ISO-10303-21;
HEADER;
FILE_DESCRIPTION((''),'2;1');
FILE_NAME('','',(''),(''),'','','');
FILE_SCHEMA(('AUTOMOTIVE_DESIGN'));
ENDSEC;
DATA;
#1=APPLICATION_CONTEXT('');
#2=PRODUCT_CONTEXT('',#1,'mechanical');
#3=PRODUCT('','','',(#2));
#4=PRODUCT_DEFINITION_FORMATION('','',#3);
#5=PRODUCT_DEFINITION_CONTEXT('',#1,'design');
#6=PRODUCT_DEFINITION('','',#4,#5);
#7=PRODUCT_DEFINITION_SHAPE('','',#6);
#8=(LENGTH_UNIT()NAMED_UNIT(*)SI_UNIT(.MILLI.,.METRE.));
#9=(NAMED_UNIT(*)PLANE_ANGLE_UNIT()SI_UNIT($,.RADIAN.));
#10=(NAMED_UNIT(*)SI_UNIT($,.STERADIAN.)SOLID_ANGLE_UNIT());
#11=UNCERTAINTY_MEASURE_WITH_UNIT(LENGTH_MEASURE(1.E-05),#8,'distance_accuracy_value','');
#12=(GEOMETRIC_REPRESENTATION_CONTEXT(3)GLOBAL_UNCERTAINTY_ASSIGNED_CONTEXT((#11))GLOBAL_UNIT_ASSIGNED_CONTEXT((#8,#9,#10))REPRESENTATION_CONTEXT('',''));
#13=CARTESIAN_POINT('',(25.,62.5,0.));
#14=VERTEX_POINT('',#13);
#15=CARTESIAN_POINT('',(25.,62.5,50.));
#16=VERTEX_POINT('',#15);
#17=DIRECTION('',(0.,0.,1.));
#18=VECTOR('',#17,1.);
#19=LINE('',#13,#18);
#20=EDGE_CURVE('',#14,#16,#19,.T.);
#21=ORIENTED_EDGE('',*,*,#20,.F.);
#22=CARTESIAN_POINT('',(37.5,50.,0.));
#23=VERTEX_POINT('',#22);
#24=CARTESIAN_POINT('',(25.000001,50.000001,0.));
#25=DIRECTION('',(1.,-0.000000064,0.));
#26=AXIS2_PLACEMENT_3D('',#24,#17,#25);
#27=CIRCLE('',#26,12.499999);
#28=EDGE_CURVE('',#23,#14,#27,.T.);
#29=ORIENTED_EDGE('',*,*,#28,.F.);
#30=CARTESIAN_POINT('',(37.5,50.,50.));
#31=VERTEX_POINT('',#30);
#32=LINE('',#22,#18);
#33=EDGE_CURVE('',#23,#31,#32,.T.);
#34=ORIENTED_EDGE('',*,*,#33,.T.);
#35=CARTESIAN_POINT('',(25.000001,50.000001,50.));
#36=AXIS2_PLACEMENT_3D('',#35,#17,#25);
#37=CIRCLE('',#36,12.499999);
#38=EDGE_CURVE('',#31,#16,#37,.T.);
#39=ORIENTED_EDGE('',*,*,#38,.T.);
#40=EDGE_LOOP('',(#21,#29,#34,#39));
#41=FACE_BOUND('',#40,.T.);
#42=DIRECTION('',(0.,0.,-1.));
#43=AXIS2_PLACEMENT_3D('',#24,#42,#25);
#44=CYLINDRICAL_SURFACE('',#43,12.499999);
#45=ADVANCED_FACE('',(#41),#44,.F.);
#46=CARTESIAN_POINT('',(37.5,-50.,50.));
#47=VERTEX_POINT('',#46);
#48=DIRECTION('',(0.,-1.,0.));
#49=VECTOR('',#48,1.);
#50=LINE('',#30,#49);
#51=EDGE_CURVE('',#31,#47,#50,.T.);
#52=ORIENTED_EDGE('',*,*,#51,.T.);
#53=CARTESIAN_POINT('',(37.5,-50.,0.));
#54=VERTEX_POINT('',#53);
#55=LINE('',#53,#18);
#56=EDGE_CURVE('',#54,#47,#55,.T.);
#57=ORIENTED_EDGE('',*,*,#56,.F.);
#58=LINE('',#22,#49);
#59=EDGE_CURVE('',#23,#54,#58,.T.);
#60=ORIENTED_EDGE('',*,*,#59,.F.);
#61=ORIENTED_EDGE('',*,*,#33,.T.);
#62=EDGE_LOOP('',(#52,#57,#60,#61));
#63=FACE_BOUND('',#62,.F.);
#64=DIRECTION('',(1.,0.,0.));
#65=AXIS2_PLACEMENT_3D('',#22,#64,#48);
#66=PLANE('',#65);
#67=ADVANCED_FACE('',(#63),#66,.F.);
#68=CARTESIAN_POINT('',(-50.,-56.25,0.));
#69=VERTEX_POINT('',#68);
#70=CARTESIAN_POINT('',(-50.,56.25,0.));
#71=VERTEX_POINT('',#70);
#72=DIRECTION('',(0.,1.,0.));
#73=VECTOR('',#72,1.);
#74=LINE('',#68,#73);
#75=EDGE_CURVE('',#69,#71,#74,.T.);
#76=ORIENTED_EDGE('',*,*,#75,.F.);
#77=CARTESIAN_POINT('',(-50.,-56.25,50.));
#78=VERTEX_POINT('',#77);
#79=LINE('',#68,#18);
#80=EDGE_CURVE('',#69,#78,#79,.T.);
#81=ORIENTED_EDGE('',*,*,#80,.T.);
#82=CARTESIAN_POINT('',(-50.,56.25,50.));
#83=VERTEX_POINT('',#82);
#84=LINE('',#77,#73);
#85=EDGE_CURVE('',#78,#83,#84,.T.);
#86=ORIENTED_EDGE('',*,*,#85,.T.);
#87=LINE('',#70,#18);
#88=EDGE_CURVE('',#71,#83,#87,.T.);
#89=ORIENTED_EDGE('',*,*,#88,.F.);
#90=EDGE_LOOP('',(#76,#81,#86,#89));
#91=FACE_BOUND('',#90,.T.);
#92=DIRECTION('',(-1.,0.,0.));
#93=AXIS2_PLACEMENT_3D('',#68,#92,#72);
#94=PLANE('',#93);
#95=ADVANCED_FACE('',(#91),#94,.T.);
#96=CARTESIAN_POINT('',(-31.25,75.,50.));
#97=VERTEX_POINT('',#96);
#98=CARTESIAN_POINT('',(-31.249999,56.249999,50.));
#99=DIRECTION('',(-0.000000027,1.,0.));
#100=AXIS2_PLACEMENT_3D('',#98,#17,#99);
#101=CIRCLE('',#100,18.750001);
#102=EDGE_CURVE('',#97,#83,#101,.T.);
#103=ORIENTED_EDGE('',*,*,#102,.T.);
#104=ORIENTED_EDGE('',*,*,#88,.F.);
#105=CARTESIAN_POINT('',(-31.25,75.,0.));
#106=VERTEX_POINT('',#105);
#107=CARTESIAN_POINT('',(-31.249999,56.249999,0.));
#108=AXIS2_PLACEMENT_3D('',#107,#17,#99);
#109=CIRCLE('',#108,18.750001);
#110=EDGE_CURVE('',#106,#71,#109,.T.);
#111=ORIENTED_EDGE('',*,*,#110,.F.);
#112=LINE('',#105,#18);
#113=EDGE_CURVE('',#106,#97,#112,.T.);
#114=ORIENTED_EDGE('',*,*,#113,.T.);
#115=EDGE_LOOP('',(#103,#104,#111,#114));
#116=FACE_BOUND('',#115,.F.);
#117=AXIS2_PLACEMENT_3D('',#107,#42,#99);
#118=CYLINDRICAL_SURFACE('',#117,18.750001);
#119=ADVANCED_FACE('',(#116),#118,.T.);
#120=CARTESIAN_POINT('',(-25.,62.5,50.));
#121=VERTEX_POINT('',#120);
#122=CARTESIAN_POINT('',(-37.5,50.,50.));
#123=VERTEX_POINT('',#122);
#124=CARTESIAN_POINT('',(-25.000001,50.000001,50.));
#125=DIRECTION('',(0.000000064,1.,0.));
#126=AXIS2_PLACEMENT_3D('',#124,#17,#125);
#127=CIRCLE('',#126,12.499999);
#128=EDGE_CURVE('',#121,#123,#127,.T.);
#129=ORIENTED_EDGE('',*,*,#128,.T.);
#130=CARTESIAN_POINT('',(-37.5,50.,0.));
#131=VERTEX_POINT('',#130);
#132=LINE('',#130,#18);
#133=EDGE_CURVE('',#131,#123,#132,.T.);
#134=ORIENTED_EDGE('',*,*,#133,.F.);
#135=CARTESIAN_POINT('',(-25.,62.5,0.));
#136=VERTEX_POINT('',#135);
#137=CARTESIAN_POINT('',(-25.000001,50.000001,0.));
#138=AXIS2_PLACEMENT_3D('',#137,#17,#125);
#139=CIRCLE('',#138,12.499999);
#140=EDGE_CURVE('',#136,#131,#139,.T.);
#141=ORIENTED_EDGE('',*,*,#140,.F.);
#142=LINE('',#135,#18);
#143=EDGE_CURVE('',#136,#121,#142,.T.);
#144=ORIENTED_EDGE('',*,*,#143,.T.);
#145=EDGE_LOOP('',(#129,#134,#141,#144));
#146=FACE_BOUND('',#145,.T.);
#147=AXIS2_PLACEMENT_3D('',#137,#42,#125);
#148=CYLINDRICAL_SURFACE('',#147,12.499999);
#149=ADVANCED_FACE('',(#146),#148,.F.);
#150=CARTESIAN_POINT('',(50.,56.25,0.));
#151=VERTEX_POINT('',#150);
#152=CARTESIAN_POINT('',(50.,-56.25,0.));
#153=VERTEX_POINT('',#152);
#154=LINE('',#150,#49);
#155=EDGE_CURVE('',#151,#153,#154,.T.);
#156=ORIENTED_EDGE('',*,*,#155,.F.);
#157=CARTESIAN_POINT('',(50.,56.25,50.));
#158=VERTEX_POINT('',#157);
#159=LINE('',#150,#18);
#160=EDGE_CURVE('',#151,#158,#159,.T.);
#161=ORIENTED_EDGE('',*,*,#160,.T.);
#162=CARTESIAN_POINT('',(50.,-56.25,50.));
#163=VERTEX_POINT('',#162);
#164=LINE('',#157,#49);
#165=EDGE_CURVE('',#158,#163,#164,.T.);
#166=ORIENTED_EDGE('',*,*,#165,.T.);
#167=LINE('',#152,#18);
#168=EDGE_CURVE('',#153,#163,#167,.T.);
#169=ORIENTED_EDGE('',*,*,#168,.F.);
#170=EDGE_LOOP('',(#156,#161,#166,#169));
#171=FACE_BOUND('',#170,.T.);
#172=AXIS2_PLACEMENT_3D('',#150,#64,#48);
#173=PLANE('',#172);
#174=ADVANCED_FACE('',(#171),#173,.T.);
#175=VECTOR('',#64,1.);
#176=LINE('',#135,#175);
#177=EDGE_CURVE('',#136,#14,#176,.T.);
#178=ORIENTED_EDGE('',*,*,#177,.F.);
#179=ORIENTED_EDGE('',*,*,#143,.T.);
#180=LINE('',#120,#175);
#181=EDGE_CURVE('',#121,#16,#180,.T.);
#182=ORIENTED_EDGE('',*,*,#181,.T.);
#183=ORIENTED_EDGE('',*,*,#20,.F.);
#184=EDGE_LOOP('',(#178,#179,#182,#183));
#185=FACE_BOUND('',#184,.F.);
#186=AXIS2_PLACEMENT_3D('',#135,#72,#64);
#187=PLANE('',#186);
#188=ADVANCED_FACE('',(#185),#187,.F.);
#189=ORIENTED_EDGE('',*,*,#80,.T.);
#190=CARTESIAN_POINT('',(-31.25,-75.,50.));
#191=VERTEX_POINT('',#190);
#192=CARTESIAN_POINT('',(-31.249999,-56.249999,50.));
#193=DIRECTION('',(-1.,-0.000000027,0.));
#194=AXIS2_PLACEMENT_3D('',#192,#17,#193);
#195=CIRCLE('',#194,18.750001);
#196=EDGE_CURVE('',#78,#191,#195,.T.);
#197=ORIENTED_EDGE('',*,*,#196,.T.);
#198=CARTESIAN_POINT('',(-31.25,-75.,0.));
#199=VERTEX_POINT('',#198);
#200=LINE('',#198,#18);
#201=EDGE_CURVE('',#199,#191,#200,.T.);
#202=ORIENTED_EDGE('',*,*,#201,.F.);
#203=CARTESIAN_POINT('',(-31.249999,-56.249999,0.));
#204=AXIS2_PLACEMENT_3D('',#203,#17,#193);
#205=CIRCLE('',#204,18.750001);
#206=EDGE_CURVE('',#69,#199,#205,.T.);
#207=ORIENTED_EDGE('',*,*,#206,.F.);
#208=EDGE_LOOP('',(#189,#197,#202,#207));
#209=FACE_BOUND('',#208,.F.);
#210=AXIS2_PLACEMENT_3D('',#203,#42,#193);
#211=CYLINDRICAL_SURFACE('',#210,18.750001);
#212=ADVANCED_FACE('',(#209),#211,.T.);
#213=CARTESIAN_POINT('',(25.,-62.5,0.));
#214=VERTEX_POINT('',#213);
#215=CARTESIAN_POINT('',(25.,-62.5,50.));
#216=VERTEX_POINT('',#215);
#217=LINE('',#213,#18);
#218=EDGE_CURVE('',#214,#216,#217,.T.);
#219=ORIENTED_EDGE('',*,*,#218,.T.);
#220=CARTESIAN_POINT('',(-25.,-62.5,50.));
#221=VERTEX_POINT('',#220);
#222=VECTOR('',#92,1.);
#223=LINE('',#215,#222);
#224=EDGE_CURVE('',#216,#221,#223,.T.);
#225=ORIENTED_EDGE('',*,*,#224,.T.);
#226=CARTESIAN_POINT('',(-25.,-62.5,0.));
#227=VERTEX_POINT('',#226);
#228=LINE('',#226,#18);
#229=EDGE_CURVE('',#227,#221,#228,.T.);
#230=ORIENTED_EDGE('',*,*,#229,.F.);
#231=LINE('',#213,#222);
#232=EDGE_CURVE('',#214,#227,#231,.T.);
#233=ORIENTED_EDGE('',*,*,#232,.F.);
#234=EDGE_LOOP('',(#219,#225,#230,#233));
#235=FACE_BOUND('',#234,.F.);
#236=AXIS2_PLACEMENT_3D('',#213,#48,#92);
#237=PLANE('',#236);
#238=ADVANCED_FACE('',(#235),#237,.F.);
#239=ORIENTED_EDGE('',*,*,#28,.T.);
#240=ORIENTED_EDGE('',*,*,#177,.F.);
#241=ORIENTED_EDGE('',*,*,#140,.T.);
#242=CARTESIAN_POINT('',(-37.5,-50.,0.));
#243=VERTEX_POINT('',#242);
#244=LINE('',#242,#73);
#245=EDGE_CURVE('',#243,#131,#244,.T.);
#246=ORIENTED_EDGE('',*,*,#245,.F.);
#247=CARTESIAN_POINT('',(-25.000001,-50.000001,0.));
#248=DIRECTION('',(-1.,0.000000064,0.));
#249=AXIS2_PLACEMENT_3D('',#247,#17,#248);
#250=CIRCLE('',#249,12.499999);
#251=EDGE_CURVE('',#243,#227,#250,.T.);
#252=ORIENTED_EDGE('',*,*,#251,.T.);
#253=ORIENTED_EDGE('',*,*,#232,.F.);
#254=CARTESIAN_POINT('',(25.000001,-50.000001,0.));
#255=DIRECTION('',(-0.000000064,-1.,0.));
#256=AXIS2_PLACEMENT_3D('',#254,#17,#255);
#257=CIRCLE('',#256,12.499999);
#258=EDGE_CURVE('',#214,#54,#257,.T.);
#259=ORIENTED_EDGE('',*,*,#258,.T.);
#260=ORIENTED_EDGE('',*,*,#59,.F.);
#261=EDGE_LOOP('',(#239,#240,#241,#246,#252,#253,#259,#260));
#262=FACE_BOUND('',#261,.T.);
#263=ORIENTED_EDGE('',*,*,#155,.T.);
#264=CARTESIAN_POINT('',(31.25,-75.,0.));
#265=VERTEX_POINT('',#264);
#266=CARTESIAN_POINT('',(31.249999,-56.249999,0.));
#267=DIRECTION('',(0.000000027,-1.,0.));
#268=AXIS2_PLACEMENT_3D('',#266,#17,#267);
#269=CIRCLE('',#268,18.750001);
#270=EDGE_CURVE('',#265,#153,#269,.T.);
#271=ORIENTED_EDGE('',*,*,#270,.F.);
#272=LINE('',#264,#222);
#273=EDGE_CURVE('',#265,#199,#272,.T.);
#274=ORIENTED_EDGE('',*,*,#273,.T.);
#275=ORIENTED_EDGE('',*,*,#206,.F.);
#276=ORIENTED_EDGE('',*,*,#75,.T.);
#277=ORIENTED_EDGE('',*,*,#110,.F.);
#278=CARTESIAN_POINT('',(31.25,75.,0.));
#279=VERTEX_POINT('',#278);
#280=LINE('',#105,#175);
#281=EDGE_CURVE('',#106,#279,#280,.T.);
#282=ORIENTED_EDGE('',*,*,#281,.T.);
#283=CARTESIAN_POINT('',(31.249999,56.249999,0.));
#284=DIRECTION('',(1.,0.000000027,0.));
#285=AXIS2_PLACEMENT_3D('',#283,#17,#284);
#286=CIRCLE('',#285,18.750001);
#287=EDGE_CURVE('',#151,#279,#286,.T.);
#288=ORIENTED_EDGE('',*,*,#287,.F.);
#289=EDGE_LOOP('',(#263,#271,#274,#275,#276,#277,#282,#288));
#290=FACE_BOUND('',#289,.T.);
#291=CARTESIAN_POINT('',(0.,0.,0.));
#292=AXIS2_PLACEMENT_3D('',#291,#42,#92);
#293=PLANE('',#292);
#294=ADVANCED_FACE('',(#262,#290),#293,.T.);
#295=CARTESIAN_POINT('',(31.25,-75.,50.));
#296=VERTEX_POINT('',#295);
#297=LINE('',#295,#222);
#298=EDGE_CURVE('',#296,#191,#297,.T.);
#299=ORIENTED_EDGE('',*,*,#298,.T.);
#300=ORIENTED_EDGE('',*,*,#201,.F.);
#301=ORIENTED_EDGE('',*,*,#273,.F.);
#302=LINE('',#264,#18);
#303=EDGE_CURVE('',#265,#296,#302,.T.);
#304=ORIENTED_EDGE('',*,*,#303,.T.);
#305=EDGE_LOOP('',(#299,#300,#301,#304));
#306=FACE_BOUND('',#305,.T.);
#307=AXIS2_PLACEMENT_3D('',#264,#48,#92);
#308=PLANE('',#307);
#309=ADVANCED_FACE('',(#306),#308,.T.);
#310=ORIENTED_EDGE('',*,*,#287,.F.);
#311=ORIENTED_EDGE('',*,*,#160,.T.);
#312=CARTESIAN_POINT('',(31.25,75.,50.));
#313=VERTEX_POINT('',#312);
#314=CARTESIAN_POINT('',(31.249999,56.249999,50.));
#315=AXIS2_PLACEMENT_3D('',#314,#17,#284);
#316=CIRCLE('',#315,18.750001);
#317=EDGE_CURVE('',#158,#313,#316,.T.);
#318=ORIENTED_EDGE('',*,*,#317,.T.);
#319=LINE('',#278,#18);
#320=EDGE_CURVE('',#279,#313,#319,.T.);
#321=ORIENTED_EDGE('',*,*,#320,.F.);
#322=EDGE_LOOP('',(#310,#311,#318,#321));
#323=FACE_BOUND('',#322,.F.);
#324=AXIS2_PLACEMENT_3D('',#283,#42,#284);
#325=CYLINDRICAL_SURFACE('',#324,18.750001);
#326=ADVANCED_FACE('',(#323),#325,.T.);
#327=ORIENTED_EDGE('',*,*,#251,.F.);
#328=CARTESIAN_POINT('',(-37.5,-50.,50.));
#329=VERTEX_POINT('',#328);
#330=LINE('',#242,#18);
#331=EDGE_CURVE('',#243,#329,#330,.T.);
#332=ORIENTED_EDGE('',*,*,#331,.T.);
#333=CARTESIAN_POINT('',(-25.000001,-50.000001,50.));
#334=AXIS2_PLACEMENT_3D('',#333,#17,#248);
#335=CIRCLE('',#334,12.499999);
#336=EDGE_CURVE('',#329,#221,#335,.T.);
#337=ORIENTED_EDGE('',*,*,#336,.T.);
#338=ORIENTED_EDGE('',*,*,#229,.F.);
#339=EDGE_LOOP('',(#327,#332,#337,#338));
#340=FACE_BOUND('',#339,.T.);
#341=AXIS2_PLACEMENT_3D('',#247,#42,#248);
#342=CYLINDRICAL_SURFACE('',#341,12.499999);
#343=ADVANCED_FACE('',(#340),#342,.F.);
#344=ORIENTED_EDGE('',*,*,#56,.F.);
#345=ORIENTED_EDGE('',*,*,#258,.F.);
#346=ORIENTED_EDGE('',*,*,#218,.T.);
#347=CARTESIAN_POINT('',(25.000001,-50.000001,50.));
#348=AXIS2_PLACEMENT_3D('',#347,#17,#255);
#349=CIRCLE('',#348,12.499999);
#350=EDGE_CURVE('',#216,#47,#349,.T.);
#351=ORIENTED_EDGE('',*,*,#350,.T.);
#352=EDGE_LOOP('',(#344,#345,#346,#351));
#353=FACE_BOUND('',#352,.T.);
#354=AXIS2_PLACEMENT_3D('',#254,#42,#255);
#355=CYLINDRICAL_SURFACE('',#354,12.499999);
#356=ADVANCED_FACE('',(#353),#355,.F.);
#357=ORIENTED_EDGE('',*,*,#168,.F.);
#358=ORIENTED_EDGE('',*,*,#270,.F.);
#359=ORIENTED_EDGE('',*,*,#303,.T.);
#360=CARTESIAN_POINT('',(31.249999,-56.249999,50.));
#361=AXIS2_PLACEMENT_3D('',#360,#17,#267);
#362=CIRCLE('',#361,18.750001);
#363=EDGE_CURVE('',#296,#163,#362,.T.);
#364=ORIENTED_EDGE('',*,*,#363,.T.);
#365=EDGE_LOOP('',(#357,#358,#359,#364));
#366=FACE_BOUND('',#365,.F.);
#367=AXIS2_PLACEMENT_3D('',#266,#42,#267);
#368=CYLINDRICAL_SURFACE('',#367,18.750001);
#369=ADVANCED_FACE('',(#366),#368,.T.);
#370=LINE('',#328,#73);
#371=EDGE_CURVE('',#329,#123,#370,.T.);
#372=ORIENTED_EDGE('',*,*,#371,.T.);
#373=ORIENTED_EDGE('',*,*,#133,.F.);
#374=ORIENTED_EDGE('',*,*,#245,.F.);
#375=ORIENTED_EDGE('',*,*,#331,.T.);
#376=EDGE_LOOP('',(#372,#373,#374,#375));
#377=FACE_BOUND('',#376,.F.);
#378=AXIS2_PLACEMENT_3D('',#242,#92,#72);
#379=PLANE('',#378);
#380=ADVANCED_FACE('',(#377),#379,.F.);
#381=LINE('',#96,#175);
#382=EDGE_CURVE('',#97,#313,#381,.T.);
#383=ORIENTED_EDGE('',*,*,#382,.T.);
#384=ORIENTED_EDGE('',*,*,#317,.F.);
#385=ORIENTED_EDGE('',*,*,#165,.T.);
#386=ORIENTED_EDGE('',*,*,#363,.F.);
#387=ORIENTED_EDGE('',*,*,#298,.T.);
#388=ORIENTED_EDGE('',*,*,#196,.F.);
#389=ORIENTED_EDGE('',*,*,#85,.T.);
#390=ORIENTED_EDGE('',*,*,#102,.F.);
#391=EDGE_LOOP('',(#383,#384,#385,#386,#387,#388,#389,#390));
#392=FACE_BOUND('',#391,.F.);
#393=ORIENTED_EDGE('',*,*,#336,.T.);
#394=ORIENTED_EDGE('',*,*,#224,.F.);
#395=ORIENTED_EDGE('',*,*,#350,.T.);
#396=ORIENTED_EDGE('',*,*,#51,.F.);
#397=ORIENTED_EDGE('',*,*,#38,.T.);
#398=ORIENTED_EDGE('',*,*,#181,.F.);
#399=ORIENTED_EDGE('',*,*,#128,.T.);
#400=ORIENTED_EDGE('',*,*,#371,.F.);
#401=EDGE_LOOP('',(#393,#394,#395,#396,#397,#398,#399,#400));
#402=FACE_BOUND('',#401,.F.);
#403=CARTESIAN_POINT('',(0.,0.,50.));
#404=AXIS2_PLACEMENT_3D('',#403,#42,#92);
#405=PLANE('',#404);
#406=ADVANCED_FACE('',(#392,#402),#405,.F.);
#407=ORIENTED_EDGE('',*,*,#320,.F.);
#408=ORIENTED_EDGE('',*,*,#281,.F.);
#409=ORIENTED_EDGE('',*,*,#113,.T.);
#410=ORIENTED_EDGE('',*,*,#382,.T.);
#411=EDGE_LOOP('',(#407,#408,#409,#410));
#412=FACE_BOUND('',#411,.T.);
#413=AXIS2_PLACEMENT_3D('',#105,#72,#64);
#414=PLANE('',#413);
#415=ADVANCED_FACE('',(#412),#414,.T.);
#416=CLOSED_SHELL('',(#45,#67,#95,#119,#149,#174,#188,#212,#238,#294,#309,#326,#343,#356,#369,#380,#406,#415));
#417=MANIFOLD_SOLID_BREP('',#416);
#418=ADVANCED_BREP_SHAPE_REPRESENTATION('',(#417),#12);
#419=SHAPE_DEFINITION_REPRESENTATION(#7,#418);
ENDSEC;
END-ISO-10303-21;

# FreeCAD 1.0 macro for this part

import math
import FreeCAD as App
import Part
import Sketcher

V = App.Vector

doc = App.newDocument("Part")
body = doc.addObject("PartDesign::Body", "Body")

# Sketch on XY plane
sketch1 = doc.addObject("Sketcher::SketchObject", "Sketch")
body.addObject(sketch1)
sketch1.AttachmentSupport = (doc.XY_Plane, [""])
sketch1.MapMode = "FlatFace"
sketch1.addGeometry([
    Part.LineSegment(V(31.25, 75, 0), V(-31.25, 75, 0)),  # 0
    Part.ArcOfCircle(Part.Circle(V(-31.249999, 56.249999, 0), V(0, 0, 1), 18.750001), math.radians(90.000002), math.radians(179.999998)),  # 1
    Part.LineSegment(V(-50, 56.25, 0), V(-50, -56.25, 0)),  # 2
    Part.ArcOfCircle(Part.Circle(V(-31.249999, -56.249999, 0), V(0, 0, 1), 18.750001), math.radians(-179.999998), math.radians(-90.000002)),  # 3
    Part.LineSegment(V(-31.25, -75, 0), V(31.25, -75, 0)),  # 4
    Part.ArcOfCircle(Part.Circle(V(31.249999, -56.249999, 0), V(0, 0, 1), 18.750001), math.radians(-89.999998), math.radians(-0.000002)),  # 5
    Part.LineSegment(V(50, -56.25, 0), V(50, 56.25, 0)),  # 6
    Part.ArcOfCircle(Part.Circle(V(31.249999, 56.249999, 0), V(0, 0, 1), 18.750001), math.radians(0.000002), math.radians(89.999998)),  # 7
    Part.LineSegment(V(-25, 62.5, 0), V(25, 62.5, 0)),  # 8
    Part.ArcOfCircle(Part.Circle(V(25.000001, 50.000001, 0), V(0, 0, 1), 12.499999), math.radians(-0.000004), math.radians(90.000004)),  # 9
    Part.LineSegment(V(37.5, 50, 0), V(37.5, -50, 0)),  # 10
    Part.ArcOfCircle(Part.Circle(V(25.000001, -50.000001, 0), V(0, 0, 1), 12.499999), math.radians(-90.000004), math.radians(0.000004)),  # 11
    Part.LineSegment(V(25, -62.5, 0), V(-25, -62.5, 0)),  # 12
    Part.ArcOfCircle(Part.Circle(V(-25.000001, -50.000001, 0), V(0, 0, 1), 12.499999), math.radians(179.999996), math.radians(270.000004)),  # 13
    Part.LineSegment(V(-37.5, -50, 0), V(-37.5, 50, 0)),  # 14
    Part.ArcOfCircle(Part.Circle(V(-25.000001, 50.000001, 0), V(0, 0, 1), 12.499999), math.radians(89.999996), math.radians(180.000004)),  # 15
], False)
sketch1.addConstraint([
    Sketcher.Constraint("Tangent", 0, 2, 1, 1),
    Sketcher.Constraint("Tangent", 1, 2, 2, 1),
    Sketcher.Constraint("Tangent", 2, 2, 3, 1),
    Sketcher.Constraint("Tangent", 3, 2, 4, 1),
    Sketcher.Constraint("Tangent", 4, 2, 5, 1),
    Sketcher.Constraint("Tangent", 5, 2, 6, 1),
    Sketcher.Constraint("Tangent", 6, 2, 7, 1),
    Sketcher.Constraint("Tangent", 7, 2, 0, 1),
    Sketcher.Constraint("Tangent", 8, 2, 9, 2),
    Sketcher.Constraint("Tangent", 9, 1, 10, 1),
    Sketcher.Constraint("Tangent", 10, 2, 11, 2),
    Sketcher.Constraint("Tangent", 11, 1, 12, 1),
    Sketcher.Constraint("Tangent", 12, 2, 13, 2),
    Sketcher.Constraint("Tangent", 13, 1, 14, 1),
    Sketcher.Constraint("Tangent", 14, 2, 15, 2),
    Sketcher.Constraint("Tangent", 15, 1, 8, 1),
    Sketcher.Constraint("Horizontal", 0),
    Sketcher.Constraint("Vertical", 2),
    Sketcher.Constraint("Horizontal", 4),
    Sketcher.Constraint("Vertical", 6),
    Sketcher.Constraint("Horizontal", 8),
    Sketcher.Constraint("Vertical", 10),
    Sketcher.Constraint("Horizontal", 12),
    Sketcher.Constraint("Vertical", 14),
    Sketcher.Constraint("Equal", 1, 3),
    Sketcher.Constraint("Equal", 3, 5),
    Sketcher.Constraint("Equal", 5, 7),
    Sketcher.Constraint("Equal", 9, 11),
    Sketcher.Constraint("Equal", 11, 13),
    Sketcher.Constraint("Equal", 13, 15),
    Sketcher.Constraint("Symmetric", 1, 3, 5, 3, -1, 1),
    Sketcher.Constraint("Symmetric", 9, 3, 13, 3, -1, 1),
    Sketcher.Constraint("Radius", 9, 12.499999),
    Sketcher.Constraint("DistanceX", 8, 1, 8, 2, 50.0),
    Sketcher.Constraint("DistanceY", 10, 2, 10, 1, 100.0),
    Sketcher.Constraint("Radius", 1, 18.750001),
    Sketcher.Constraint("DistanceX", 0, 2, 0, 1, 62.5),
    Sketcher.Constraint("DistanceY", 2, 2, 2, 1, 112.5),
])
pad1 = doc.addObject("PartDesign::Pad", "Pad")
body.addObject(pad1)
pad1.Profile = sketch1
pad1.Length = 50

doc.recompute()
